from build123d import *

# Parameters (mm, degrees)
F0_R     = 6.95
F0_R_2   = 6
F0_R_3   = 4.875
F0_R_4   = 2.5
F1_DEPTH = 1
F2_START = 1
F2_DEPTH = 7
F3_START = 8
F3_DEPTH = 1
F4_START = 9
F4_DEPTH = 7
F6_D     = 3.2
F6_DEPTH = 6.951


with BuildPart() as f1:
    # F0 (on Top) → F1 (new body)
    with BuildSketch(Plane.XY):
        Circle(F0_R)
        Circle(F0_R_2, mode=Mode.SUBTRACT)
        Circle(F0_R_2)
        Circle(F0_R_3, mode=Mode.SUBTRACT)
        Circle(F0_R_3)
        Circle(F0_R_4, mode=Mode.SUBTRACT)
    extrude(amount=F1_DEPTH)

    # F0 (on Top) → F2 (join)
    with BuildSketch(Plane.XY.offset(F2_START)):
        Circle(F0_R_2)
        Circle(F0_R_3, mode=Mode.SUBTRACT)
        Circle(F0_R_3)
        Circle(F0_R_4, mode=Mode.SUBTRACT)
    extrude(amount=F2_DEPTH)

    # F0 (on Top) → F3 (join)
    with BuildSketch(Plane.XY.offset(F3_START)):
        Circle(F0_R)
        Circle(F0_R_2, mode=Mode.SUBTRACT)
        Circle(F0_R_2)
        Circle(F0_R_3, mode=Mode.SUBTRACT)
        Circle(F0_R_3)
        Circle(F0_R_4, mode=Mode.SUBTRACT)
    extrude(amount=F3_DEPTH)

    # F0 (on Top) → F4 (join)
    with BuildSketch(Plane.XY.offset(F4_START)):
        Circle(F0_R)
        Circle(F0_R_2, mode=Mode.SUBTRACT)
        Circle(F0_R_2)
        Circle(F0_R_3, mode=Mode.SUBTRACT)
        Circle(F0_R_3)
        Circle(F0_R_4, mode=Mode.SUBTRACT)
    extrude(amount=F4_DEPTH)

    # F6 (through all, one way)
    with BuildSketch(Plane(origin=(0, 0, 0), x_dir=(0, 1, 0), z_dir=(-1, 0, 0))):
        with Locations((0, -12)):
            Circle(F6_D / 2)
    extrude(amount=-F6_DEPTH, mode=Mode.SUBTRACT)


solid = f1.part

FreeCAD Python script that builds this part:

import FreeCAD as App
import Part
import Sketcher

doc = App.newDocument("Part")
body = doc.addObject("PartDesign::Body", "Body")

# Sketch on XY plane
sketch1 = body.newObject("Sketcher::SketchObject", "Sketch")
sketch1.AttachmentSupport = (doc.getObject("XY_Plane"), [""])
sketch1.MapMode = "FlatFace"
sketch1.addGeometry([
    Part.Circle(App.Vector(0, 0, 0), App.Vector(0, 0, 1), 6.95),
    Part.Circle(App.Vector(0, 0, 0), App.Vector(0, 0, 1), 2.5),
], False)
sketch1.addConstraint([
    Sketcher.Constraint("Coincident", 0, 3, -1, 1),
    Sketcher.Constraint("Coincident", 1, 3, -1, 1),
    Sketcher.Constraint("Diameter", 1, 5.0),
    Sketcher.Constraint("Diameter", 0, 13.9),
])
pad1 = body.newObject("PartDesign::Pad", "Pad")
pad1.Profile = sketch1
pad1.Length = 1

# Sketch on XY plane
sketch2 = body.newObject("Sketcher::SketchObject", "Sketch001")
sketch2.AttachmentSupport = (doc.getObject("XY_Plane"), [""])
sketch2.MapMode = "FlatFace"
sketch2.AttachmentOffset = App.Placement(App.Vector(0, 0, 1), App.Rotation())
sketch2.addGeometry([
    Part.Circle(App.Vector(0, 0, 0), App.Vector(0, 0, 1), 6),
    Part.Circle(App.Vector(0, 0, 0), App.Vector(0, 0, 1), 2.5),
], False)
sketch2.addConstraint([
    Sketcher.Constraint("Coincident", 0, 3, -1, 1),
    Sketcher.Constraint("Coincident", 1, 3, -1, 1),
    Sketcher.Constraint("Diameter", 0, 12.0),
    Sketcher.Constraint("Diameter", 1, 5.0),
])
pad2 = body.newObject("PartDesign::Pad", "Pad001")
pad2.Profile = sketch2
pad2.Length = 7

# Sketch on XY plane
sketch3 = body.newObject("Sketcher::SketchObject", "Sketch002")
sketch3.AttachmentSupport = (doc.getObject("XY_Plane"), [""])
sketch3.MapMode = "FlatFace"
sketch3.AttachmentOffset = App.Placement(App.Vector(0, 0, 8), App.Rotation())
sketch3.addGeometry([
    Part.Circle(App.Vector(0, 0, 0), App.Vector(0, 0, 1), 6.95),
    Part.Circle(App.Vector(0, 0, 0), App.Vector(0, 0, 1), 2.5),
], False)
sketch3.addConstraint([
    Sketcher.Constraint("Coincident", 0, 3, -1, 1),
    Sketcher.Constraint("Coincident", 1, 3, -1, 1),
    Sketcher.Constraint("Diameter", 1, 5.0),
    Sketcher.Constraint("Diameter", 0, 13.9),
])
pad3 = body.newObject("PartDesign::Pad", "Pad002")
pad3.Profile = sketch3
pad3.Length = 1

# Sketch on XY plane
sketch4 = body.newObject("Sketcher::SketchObject", "Sketch003")
sketch4.AttachmentSupport = (doc.getObject("XY_Plane"), [""])
sketch4.MapMode = "FlatFace"
sketch4.AttachmentOffset = App.Placement(App.Vector(0, 0, 9), App.Rotation())
sketch4.addGeometry([
    Part.Circle(App.Vector(0, 0, 0), App.Vector(0, 0, 1), 6.95),
    Part.Circle(App.Vector(0, 0, 0), App.Vector(0, 0, 1), 2.5),
], False)
sketch4.addConstraint([
    Sketcher.Constraint("Coincident", 0, 3, -1, 1),
    Sketcher.Constraint("Coincident", 1, 3, -1, 1),
    Sketcher.Constraint("Diameter", 1, 5.0),
    Sketcher.Constraint("Diameter", 0, 13.9),
])
pad4 = body.newObject("PartDesign::Pad", "Pad003")
pad4.Profile = sketch4
pad4.Length = 7

# Sketch on YZ plane
sketch5 = body.newObject("Sketcher::SketchObject", "Sketch004")
sketch5.AttachmentSupport = (doc.getObject("YZ_Plane"), [""])
sketch5.MapMode = "FlatFace"
sketch5.addGeometry(Part.Circle(App.Vector(0, 12, 0), App.Vector(0, 0, 1), 1.6), False)
sketch5.addConstraint([
    Sketcher.Constraint("PointOnObject", 0, 3, -2),
    Sketcher.Constraint("Diameter", 0, 3.2),
    Sketcher.Constraint("DistanceY", -1, 1, 0, 3, 12.0),
])
pocket1 = body.newObject("PartDesign::Pocket", "Pocket")
pocket1.Profile = sketch5
pocket1.Type = "ThroughAll"
pocket1.Reversed = True

doc.recompute()
